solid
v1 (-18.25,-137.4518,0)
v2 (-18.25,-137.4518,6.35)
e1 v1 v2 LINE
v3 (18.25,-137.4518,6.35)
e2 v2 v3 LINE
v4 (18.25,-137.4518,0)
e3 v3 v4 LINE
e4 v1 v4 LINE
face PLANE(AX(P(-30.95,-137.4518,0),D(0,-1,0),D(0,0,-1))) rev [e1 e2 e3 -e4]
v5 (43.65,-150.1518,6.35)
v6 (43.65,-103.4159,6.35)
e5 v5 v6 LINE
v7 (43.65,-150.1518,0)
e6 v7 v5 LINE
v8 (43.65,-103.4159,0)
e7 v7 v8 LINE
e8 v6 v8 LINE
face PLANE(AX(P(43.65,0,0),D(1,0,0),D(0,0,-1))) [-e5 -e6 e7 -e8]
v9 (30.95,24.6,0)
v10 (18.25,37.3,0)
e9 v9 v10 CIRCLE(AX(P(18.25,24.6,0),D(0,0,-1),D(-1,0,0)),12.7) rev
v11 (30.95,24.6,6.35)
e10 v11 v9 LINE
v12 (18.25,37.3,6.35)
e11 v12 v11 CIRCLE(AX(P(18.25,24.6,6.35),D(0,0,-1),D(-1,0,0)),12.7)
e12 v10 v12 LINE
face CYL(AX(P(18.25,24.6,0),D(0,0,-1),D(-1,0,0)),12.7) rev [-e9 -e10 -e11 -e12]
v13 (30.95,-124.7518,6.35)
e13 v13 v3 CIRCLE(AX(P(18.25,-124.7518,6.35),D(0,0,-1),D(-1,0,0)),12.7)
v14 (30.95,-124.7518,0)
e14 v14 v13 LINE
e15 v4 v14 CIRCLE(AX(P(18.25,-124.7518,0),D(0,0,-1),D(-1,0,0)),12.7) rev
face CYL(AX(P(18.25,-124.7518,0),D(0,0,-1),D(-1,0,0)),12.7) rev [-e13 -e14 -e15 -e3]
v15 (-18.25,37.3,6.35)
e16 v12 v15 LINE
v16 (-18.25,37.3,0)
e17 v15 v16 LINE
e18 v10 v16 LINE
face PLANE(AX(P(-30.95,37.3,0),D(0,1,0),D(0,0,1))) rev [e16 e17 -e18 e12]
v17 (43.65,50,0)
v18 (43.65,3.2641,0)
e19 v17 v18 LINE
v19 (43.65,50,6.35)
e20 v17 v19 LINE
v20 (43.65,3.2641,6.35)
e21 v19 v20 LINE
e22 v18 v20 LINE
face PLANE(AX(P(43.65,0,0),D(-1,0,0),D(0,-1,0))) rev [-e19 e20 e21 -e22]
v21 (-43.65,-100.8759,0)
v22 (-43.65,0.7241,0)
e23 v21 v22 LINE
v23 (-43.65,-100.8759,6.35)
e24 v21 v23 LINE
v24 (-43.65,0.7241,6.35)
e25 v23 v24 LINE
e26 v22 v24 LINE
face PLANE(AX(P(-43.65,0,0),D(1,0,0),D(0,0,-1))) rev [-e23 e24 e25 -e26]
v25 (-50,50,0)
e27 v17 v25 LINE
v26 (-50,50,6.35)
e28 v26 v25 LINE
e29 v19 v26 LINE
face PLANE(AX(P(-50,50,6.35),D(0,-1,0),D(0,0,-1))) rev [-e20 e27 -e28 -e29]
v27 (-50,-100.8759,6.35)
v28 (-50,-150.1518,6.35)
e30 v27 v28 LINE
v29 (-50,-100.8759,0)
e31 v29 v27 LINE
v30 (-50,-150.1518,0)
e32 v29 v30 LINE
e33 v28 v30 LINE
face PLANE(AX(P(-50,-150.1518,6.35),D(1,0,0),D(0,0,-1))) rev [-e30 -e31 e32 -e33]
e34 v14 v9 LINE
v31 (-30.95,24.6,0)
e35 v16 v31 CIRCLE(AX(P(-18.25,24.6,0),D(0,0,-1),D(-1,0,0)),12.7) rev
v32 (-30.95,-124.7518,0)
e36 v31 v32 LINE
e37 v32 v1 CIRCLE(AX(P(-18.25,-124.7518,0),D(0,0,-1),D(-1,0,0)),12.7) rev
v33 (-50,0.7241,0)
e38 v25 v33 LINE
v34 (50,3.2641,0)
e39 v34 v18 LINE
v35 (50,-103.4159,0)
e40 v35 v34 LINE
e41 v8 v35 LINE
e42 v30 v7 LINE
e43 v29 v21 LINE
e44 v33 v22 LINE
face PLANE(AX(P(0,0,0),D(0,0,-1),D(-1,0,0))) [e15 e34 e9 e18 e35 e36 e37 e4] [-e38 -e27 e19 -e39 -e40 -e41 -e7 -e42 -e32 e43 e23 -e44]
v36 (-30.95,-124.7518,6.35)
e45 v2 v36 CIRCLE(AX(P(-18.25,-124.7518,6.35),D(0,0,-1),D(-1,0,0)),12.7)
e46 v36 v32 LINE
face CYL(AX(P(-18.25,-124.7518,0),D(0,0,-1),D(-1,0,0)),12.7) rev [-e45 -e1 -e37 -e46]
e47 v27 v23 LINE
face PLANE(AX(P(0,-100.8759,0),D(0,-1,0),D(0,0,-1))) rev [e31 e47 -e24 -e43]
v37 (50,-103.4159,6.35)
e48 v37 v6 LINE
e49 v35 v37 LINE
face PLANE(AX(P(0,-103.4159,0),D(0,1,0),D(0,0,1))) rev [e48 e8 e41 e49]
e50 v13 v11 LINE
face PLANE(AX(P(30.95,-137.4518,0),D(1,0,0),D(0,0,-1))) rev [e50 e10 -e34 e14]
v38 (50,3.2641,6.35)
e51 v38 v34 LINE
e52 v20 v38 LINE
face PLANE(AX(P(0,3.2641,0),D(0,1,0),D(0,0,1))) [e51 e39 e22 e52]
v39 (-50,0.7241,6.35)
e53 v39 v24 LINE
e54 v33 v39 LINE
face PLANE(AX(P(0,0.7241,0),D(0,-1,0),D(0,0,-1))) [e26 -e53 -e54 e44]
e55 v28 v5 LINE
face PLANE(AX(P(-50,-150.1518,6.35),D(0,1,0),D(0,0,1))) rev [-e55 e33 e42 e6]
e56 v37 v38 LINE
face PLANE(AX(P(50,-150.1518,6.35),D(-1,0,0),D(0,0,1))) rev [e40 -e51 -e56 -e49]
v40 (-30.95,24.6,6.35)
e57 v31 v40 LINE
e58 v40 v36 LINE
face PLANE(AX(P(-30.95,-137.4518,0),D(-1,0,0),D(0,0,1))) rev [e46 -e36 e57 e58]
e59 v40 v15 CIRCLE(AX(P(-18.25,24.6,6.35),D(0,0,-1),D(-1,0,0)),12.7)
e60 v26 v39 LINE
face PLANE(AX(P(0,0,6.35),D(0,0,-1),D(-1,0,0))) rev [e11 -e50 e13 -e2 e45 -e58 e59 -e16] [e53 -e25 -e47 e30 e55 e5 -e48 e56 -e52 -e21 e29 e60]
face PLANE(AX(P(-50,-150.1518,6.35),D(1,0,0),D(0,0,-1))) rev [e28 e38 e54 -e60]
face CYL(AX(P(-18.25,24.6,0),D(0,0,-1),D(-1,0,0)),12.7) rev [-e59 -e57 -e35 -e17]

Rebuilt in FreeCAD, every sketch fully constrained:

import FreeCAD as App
import Part
import Sketcher
Q = App.Units.Quantity


def edges_at(feature, points):
    """Names of the edges that pass closest to the given points."""
    edges = feature.Shape.Edges
    near = lambda p: min(range(len(edges)), key=lambda i: edges[i].distToShape(Part.Vertex(*p))[0])
    return sorted({f"Edge{near(p) + 1}" for p in points})


def add_polygon(sketch, points):
    """Adds a closed chain of lines whose ends are joined by coincident constraints."""
    first, n = sketch.GeometryCount, len(points)
    for a, b in zip(points, points[1:] + points[:1]):
        sketch.addGeometry(Part.LineSegment(App.Vector(*a, 0), App.Vector(*b, 0)), False)
    for i in range(n):
        sketch.addConstraint(Sketcher.Constraint("Coincident", first + i, 2, first + (i + 1) % n, 1))

doc = App.newDocument("Part")
body = doc.addObject("PartDesign::Body", "Body")

sketch1 = body.newObject("Sketcher::SketchObject", "Sketch")
sketch1.AttachmentSupport = (doc.getObject("XY_Plane"), [""])
sketch1.MapMode = "FlatFace"
add_polygon(sketch1, [(-50, 50), (-50, -150), (50, -150), (50, 50)])
sketch1.addConstraint(Sketcher.Constraint("Vertical", 0))
sketch1.addConstraint(Sketcher.Constraint("Horizontal", 1))
sketch1.addConstraint(Sketcher.Constraint("Vertical", 2))
sketch1.addConstraint(Sketcher.Constraint("Horizontal", 3))
sketch1.addConstraint(Sketcher.Constraint("DistanceX", 1, 1, 1, 2, 100.0))
sketch1.addConstraint(Sketcher.Constraint("DistanceY", 0, 2, 0, 1, 200.1518))
sketch1.addConstraint(Sketcher.Constraint("DistanceX", 0, 2, -1, 1, 50.0))
sketch1.addConstraint(Sketcher.Constraint("DistanceY", 0, 2, -1, 1, 150.1518))
pad1 = body.newObject("PartDesign::Pad", "Pad")
pad1.Profile = sketch1
pad1.Length = Q("0.25 in")

sketch2 = body.newObject("Sketcher::SketchObject", "Sketch001")
sketch2.AttachmentSupport = (doc.getObject("XY_Plane"), [""])
sketch2.MapMode = "FlatFace"
sketch2.AttachmentOffset = App.Placement(App.Vector(0, 0, 0.25 * 25.4), App.Rotation())
add_polygon(sketch2, [(-50, 1), (-50, -101), (-44, -101), (-44, 1)])
add_polygon(sketch2, [(44, 50), (44, 1), (50, 1), (50, 50)])
add_polygon(sketch2, [(44, -101), (44, -150), (50, -150), (50, -101)])
sketch2.addConstraint(Sketcher.Constraint("Vertical", 0))
sketch2.addConstraint(Sketcher.Constraint("Horizontal", 1))
sketch2.addConstraint(Sketcher.Constraint("Vertical", 2))
sketch2.addConstraint(Sketcher.Constraint("Horizontal", 3))
sketch2.addConstraint(Sketcher.Constraint("Vertical", 4))
sketch2.addConstraint(Sketcher.Constraint("Horizontal", 5))
sketch2.addConstraint(Sketcher.Constraint("Vertical", 6))
sketch2.addConstraint(Sketcher.Constraint("Horizontal", 7))
sketch2.addConstraint(Sketcher.Constraint("Vertical", 8))
sketch2.addConstraint(Sketcher.Constraint("Horizontal", 9))
sketch2.addConstraint(Sketcher.Constraint("Vertical", 10))
sketch2.addConstraint(Sketcher.Constraint("Horizontal", 11))
sketch2.addConstraint(Sketcher.Constraint("Symmetric", 2, 2, 4, 2, -2))
sketch2.addConstraint(Sketcher.Constraint("Symmetric", 0, 2, 10, 2, -2))
sketch2.addConstraint(Sketcher.Constraint("Vertical", 7, 2, 8, 2))
sketch2.addConstraint(Sketcher.Constraint("Vertical", 6, 2, 9, 2))
sketch2.addConstraint(Sketcher.Constraint("Equal", 6, 8))
sketch2.addConstraint(Sketcher.Constraint("DistanceY", 0, 2, 0, 1, Q("4 in")))
sketch2.addConstraint(Sketcher.Constraint("DistanceX", 1, 1, 1, 2, Q("0.25 in")))
sketch2.addConstraint(Sketcher.Constraint("DistanceY", 4, 2, 4, 1, 49.2759))
sketch2.addConstraint(Sketcher.Constraint("DistanceX", 0, 2, -1, 1, 50.0))
sketch2.addConstraint(Sketcher.Constraint("DistanceY", 0, 2, -1, 1, 100.8759))
pocket1 = body.newObject("PartDesign::Pocket", "Pocket")
pocket1.Profile = sketch2
pocket1.Length = Q("0.25 in")

sketch3 = body.newObject("Sketcher::SketchObject", "Sketch002")
sketch3.AttachmentSupport = (doc.getObject("XY_Plane"), [""])
sketch3.MapMode = "FlatFace"
sketch3.AttachmentOffset = App.Placement(App.Vector(0, 0, 0.25 * 25.4), App.Rotation())
add_polygon(sketch3, [(-31, 37), (-31, -137), (31, -137), (31, 37)])
sketch3.addConstraint(Sketcher.Constraint("Vertical", 0))
sketch3.addConstraint(Sketcher.Constraint("Horizontal", 1))
sketch3.addConstraint(Sketcher.Constraint("Vertical", 2))
sketch3.addConstraint(Sketcher.Constraint("Horizontal", 3))
sketch3.addConstraint(Sketcher.Constraint("DistanceX", 1, 1, 1, 2, 61.9))
sketch3.addConstraint(Sketcher.Constraint("DistanceY", 0, 2, 0, 1, 174.7518))
sketch3.addConstraint(Sketcher.Constraint("DistanceX", 0, 2, -1, 1, 30.95))
sketch3.addConstraint(Sketcher.Constraint("DistanceY", 0, 2, -1, 1, 137.4518))
pocket2 = body.newObject("PartDesign::Pocket", "Pocket001")
pocket2.Profile = sketch3
pocket2.Length = Q("0.25 in")
doc.recompute()

fillet = body.newObject("PartDesign::Fillet", "Fillet")
fillet.Base = (pocket2, edges_at(pocket2, [
    (-30.95, -137.452, 3.175),
    (-30.95, 37.3, 3.175),
    (30.95, 37.3, 3.175),
    (30.95, -137.452, 3.175),
]))
fillet.Radius = Q("0.5 in")

sketch4 = body.newObject("Sketcher::SketchObject", "Sketch003")
sketch4.AttachmentSupport = (doc.getObject("XZ_Plane"), [""])
sketch4.MapMode = "FlatFace"
sketch4.AttachmentOffset = App.Placement(App.Vector(0, 0, -0.7241), App.Rotation())
add_polygon(sketch4, [(44, 0), (44, 6), (50, 6), (50, 0)])
sketch4.addConstraint(Sketcher.Constraint("Vertical", 0))
sketch4.addConstraint(Sketcher.Constraint("Horizontal", 1))
sketch4.addConstraint(Sketcher.Constraint("Vertical", 2))
sketch4.addConstraint(Sketcher.Constraint("Horizontal", 3))
sketch4.addConstraint(Sketcher.Constraint("PointOnObject", 2, 2, -1))
sketch4.addConstraint(Sketcher.Constraint("Equal", 3, 0))
sketch4.addConstraint(Sketcher.Constraint("DistanceX", 1, 1, 1, 2, Q("0.25 in")))
sketch4.addConstraint(Sketcher.Constraint("DistanceX", -1, 1, 0, 2, 43.65))
pad2 = body.newObject("PartDesign::Pad", "Pad001")
pad2.Profile = sketch4
pad2.Length = Q("0.1 in")
pad2.Reversed = True

sketch5 = body.newObject("Sketcher::SketchObject", "Sketch004")
sketch5.AttachmentSupport = (doc.getObject("XZ_Plane"), [""])
sketch5.MapMode = "FlatFace"
sketch5.AttachmentOffset = App.Placement(App.Vector(0, 0, 100.8759), App.Rotation())
add_polygon(sketch5, [(44, 6), (44, 0), (50, 0), (50, 6)])
sketch5.addConstraint(Sketcher.Constraint("Vertical", 0))
sketch5.addConstraint(Sketcher.Constraint("Horizontal", 1))
sketch5.addConstraint(Sketcher.Constraint("Vertical", 2))
sketch5.addConstraint(Sketcher.Constraint("Horizontal", 3))
sketch5.addConstraint(Sketcher.Constraint("PointOnObject", 0, 2, -1))
sketch5.addConstraint(Sketcher.Constraint("Equal", 3, 0))
sketch5.addConstraint(Sketcher.Constraint("DistanceX", 1, 1, 1, 2, Q("0.25 in")))
sketch5.addConstraint(Sketcher.Constraint("DistanceX", -1, 1, 0, 2, 43.65))
pad3 = body.newObject("PartDesign::Pad", "Pad002")
pad3.Profile = sketch5
pad3.Length = Q("0.1 in")

doc.recompute()
